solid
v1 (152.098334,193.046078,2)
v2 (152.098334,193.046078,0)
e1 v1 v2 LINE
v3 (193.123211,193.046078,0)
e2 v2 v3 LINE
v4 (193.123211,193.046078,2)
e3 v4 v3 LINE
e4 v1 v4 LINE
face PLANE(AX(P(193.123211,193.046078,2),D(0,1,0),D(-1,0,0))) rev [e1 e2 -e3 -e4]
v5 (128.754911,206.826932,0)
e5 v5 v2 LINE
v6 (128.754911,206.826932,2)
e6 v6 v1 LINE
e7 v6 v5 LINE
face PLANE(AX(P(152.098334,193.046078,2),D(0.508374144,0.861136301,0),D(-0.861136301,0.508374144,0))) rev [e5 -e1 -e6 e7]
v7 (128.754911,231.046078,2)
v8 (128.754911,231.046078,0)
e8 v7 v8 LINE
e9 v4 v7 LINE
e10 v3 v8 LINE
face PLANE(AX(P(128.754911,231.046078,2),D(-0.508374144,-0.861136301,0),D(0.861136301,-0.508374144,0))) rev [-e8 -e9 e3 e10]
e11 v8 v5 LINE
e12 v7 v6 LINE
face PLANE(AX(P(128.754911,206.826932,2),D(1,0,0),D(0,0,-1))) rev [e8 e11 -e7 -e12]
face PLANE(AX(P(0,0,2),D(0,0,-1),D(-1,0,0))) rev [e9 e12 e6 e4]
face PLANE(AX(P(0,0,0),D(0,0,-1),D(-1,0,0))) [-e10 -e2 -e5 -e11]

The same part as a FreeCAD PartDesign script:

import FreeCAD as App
import Part
import Sketcher

V = App.Vector
Q = App.Units.Quantity


def add_polygon(sketch, points):
    """Adds a closed chain of lines whose ends are joined by coincident constraints."""
    first, n = sketch.GeometryCount, len(points)
    for a, b in zip(points, points[1:] + points[:1]):
        sketch.addGeometry(Part.LineSegment(App.Vector(*a, 0), App.Vector(*b, 0)), False)
    for i in range(n):
        sketch.addConstraint(Sketcher.Constraint("Coincident", first + i, 2, first + (i + 1) % n, 1))

doc = App.newDocument("Part")
body = doc.addObject("PartDesign::Body", "Body")

# Sketch on XY plane
sketch1 = body.newObject("Sketcher::SketchObject", "Sketch")
sketch1.AttachmentSupport = (doc.getObject("XY_Plane"), [""])
sketch1.MapMode = "FlatFace"
add_polygon(sketch1, [(193.123211, 193.046078), (128.754911, 231.046078), (128.754911, 206.826932), (152.098334, 193.046078)])  # lines 0-3
sketch1.addConstraint([
    Sketcher.Constraint("Vertical", 1),
    Sketcher.Constraint("Horizontal", 3),
    Sketcher.Constraint("Parallel", 0, 2),
    Sketcher.Constraint("DistanceY", 2, 2, 0, 2, Q("38 mm")),
    Sketcher.Constraint("Distance", 2, Q("27.107699 mm")),
    Sketcher.Constraint("DistanceX", 1, 2, 3, 2, Q("64.3683 mm")),
    Sketcher.Constraint("DistanceX", -1, 1, 0, 2, Q("128.754911 mm")),
    Sketcher.Constraint("DistanceY", -1, 1, 0, 2, Q("231.046078 mm")),
])
pad1 = body.newObject("PartDesign::Pad", "Pad")
pad1.Profile = sketch1
pad1.Length = 2

doc.recompute()
